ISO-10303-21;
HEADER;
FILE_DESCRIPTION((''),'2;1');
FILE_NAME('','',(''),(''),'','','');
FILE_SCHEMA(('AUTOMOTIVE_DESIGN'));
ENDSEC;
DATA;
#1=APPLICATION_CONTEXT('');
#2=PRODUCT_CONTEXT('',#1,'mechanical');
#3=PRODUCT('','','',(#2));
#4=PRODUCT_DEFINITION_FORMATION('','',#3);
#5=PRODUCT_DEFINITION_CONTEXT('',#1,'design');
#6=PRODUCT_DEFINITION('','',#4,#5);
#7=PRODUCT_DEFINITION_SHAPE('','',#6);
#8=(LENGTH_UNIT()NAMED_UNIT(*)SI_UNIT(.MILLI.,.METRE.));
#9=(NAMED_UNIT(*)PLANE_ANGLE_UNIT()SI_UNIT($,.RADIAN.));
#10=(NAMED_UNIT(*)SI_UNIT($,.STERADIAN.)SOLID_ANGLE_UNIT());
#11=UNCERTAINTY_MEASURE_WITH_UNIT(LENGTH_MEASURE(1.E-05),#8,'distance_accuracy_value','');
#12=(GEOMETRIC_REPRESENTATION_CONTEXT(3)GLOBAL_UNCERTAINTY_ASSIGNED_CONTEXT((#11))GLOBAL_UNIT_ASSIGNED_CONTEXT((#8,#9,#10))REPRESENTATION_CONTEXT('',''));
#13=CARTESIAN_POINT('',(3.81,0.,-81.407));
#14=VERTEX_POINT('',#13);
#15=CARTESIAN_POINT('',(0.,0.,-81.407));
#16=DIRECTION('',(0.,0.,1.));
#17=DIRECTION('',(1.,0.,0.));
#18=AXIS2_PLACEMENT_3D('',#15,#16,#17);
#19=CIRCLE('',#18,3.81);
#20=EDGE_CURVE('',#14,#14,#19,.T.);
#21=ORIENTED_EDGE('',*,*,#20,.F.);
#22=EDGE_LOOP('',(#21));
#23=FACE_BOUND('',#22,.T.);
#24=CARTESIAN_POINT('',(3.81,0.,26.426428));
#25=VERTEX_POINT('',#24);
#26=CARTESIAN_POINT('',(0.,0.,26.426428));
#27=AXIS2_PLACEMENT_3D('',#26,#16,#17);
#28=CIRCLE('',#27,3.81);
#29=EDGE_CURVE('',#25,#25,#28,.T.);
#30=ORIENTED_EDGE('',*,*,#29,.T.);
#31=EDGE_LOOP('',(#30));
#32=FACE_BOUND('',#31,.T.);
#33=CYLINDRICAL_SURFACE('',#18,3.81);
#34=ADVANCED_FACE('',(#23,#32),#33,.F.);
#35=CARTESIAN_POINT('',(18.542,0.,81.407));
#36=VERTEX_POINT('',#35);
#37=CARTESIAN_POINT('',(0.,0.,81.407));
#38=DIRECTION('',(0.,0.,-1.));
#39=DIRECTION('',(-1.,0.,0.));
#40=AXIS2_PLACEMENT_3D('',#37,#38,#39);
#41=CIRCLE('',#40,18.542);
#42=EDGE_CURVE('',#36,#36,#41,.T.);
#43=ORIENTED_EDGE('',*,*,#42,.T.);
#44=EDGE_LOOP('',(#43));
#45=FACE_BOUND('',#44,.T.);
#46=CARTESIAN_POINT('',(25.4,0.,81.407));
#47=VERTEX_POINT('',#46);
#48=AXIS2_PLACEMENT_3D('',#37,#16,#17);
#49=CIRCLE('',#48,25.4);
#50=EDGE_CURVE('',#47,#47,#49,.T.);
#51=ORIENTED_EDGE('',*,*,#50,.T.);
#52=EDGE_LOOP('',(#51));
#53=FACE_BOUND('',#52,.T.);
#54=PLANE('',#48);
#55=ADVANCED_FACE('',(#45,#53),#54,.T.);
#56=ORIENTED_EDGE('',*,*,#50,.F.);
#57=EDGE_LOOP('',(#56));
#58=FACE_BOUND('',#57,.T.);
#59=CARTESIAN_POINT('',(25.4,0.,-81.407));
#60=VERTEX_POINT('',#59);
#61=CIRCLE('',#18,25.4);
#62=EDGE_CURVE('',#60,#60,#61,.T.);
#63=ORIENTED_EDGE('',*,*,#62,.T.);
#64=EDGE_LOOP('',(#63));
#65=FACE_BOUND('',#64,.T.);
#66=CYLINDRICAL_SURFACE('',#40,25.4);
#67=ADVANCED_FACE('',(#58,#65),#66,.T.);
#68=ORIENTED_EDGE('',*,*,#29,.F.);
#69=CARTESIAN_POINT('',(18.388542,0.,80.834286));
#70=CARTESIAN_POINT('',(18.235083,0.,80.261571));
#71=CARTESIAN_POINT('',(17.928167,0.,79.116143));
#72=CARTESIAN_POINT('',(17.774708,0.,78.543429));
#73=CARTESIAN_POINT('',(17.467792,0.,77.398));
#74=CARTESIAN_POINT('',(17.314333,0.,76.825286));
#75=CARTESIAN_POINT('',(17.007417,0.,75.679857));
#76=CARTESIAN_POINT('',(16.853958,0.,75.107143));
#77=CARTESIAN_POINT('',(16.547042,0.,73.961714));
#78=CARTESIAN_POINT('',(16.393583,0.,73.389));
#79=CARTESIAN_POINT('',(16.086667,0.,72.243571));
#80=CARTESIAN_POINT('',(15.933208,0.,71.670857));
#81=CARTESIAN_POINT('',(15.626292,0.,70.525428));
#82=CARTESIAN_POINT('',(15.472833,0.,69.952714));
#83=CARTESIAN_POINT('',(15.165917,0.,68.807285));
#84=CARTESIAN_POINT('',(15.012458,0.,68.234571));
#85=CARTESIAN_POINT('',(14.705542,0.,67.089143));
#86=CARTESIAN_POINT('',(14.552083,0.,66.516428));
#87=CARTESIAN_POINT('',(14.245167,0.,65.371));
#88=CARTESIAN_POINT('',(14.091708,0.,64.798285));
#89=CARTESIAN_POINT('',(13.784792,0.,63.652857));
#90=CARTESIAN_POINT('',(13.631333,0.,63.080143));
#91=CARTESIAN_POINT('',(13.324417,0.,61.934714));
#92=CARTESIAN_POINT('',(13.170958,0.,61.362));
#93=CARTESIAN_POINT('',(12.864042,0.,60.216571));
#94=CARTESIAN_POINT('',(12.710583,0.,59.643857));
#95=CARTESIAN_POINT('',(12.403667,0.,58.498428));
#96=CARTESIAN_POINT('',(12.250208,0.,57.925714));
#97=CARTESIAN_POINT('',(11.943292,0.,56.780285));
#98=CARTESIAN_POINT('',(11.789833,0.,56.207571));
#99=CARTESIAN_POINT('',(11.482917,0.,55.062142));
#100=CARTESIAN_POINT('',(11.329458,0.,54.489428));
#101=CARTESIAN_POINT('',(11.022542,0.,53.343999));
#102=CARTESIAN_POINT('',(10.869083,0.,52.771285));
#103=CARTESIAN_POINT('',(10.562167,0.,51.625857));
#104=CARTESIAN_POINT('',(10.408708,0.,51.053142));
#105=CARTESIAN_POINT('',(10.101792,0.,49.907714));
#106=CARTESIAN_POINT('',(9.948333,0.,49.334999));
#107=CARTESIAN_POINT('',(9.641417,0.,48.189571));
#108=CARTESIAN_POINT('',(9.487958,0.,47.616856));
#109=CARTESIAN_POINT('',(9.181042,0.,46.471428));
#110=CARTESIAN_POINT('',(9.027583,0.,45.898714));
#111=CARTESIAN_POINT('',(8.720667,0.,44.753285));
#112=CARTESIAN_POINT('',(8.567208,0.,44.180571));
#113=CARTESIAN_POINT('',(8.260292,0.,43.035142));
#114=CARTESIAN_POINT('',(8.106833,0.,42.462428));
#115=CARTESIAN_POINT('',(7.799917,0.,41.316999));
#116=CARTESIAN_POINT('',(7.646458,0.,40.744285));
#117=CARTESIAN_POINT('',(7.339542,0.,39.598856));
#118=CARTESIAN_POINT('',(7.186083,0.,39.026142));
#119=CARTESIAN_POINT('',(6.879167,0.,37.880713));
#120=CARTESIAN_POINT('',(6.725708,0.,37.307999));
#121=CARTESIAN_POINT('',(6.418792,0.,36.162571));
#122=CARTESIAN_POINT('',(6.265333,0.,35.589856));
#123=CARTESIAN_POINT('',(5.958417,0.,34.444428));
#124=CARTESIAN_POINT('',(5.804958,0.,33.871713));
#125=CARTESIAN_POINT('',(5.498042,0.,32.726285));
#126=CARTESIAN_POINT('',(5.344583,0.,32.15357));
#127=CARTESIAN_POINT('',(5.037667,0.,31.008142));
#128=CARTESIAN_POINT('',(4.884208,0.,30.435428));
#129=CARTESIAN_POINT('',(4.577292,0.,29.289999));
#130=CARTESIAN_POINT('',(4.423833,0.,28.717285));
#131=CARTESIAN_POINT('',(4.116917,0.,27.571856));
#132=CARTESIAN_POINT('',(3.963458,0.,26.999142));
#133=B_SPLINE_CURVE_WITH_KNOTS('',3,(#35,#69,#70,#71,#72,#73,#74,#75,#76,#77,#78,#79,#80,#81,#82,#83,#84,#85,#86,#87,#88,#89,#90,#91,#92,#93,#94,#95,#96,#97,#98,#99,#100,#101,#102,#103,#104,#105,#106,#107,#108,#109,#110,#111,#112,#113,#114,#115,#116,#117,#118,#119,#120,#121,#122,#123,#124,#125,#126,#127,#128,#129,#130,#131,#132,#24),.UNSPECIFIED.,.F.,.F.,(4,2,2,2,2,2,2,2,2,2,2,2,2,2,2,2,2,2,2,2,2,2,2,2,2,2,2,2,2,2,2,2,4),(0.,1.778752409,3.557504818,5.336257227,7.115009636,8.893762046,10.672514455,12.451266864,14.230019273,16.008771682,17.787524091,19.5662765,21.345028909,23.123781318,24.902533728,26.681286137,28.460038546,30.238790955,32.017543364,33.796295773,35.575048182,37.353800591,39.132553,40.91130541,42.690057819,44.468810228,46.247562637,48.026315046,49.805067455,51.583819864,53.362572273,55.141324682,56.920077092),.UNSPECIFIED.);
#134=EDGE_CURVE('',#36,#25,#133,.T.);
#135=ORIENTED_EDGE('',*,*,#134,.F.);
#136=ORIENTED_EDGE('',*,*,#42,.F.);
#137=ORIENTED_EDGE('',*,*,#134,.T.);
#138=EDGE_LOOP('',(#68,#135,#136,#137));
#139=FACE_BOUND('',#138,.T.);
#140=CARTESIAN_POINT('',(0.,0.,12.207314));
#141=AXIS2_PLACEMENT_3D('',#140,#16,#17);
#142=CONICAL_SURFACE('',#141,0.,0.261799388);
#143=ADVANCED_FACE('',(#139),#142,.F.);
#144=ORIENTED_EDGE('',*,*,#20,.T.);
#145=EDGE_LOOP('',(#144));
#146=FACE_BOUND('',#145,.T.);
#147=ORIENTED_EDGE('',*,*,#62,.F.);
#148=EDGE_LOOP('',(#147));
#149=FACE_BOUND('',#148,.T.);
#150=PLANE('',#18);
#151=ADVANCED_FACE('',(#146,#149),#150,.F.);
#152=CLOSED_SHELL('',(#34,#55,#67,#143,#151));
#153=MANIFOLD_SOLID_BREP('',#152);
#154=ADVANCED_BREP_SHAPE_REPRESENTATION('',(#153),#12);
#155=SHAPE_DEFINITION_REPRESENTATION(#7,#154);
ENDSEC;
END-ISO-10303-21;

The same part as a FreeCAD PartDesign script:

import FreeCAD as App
import Part
import Sketcher
Q = App.Units.Quantity

doc = App.newDocument("Part")
params = doc.addObject("Spreadsheet::Sheet", "Params")
for row, (alias, value) in enumerate([
    ("sketch1_diameter", "2 in"),
    ("pad1_length", "6.41 in"),
    ("sketch2_diameter", "0.3 in"),
    ("sketch3_width", "0.73 in"),
    ("groove_angle", "360 deg"),
], start=1):
    params.set(f"A{row}", alias)
    params.set(f"B{row}", "=" + value)
    params.setAlias(f"B{row}", alias)

body = doc.addObject("PartDesign::Body", "Body")

sketch1 = body.newObject("Sketcher::SketchObject", "Sketch")
sketch1.AttachmentSupport = (doc.getObject("XY_Plane"), [""])
sketch1.MapMode = "FlatFace"
sketch1.addGeometry(Part.Circle(App.Vector(0, 0, 0), App.Vector(0, 0, 1), 25), False)
sketch1.addConstraint([
    Sketcher.Constraint("Coincident", 0, 3, -1, 1),
    Sketcher.Constraint("Diameter", 0, Q("2 in")),
])
sketch1.setExpression("Constraints[1]", "Params.sketch1_diameter")
pad1 = body.newObject("PartDesign::Pad", "Pad")
pad1.Profile = sketch1
pad1.setExpression("Length", "Params.pad1_length")
pad1.Midplane = True

sketch2 = body.newObject("Sketcher::SketchObject", "Sketch001")
sketch2.AttachmentSupport = (doc.getObject("XY_Plane"), [""])
sketch2.MapMode = "FlatFace"
sketch2.AttachmentOffset = App.Placement(App.Vector(0, 0, 3.205 * 25.4), App.Rotation())
sketch2.addGeometry(Part.Circle(App.Vector(0, 0, 0), App.Vector(0, 0, 1), 3.8), False)
sketch2.addConstraint([
    Sketcher.Constraint("Coincident", 0, 3, -1, 1),
    Sketcher.Constraint("Diameter", 0, Q("0.3 in")),
])
sketch2.setExpression("Constraints[1]", "Params.sketch2_diameter")
pocket1 = body.newObject("PartDesign::Pocket", "Pocket")
pocket1.Profile = sketch2
pocket1.Type = "ThroughAll"

sketch3 = body.newObject("Sketcher::SketchObject", "Sketch002")
sketch3.AttachmentSupport = (doc.getObject("YZ_Plane"), [""])
sketch3.MapMode = "FlatFace"
sketch3.addGeometry([
    Part.LineSegment(App.Vector(0, 12, 0), App.Vector(19, 81, 0)),
    Part.LineSegment(App.Vector(19, 81, 0), App.Vector(0, 81, 0)),
    Part.LineSegment(App.Vector(0, 81, 0), App.Vector(0, 12, 0)),
], False)
sketch3.addConstraint([
    Sketcher.Constraint("Coincident", 0, 2, 1, 1),
    Sketcher.Constraint("Coincident", 1, 2, 2, 1),
    Sketcher.Constraint("Coincident", 2, 2, 0, 1),
    Sketcher.Constraint("Horizontal", 1),
    Sketcher.Constraint("Vertical", 2),
    Sketcher.Constraint("PointOnObject", 1, 2, -2),
    Sketcher.Constraint("Angle", 0, Q("75 deg")),
    Sketcher.Constraint("DistanceX", 1, 2, 1, 1, Q("0.73 in")),
    Sketcher.Constraint("DistanceY", -1, 1, 0, 2, Q("3.205 in")),
])
sketch3.setExpression("Constraints[7]", "Params.sketch3_width")
groove = body.newObject("PartDesign::Groove", "Groove")
groove.Profile = sketch3
groove.ReferenceAxis = (sketch3, ["V_Axis"])
groove.setExpression("Angle", "Params.groove_angle")

doc.recompute()
